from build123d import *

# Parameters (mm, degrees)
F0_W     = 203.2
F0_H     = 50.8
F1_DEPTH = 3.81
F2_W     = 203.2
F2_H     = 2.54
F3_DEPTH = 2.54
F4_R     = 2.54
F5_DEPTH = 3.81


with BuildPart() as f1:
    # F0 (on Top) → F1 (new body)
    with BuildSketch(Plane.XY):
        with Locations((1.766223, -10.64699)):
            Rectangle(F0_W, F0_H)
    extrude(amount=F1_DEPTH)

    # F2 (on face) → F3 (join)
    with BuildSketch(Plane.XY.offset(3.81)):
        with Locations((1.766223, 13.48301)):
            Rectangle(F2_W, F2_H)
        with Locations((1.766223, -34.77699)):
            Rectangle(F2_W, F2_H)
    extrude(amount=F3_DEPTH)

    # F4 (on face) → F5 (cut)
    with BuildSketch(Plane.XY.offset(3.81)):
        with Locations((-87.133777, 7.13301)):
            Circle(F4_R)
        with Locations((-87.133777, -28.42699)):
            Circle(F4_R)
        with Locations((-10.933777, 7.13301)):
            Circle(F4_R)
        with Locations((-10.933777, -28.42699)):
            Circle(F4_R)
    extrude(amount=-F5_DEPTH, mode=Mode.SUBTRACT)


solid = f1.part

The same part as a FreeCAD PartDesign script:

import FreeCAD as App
import Part
import Sketcher
from FreeCAD import Vector
Q = App.Units.Quantity

doc = App.newDocument("Part")
params = doc.addObject("Spreadsheet::Sheet", "Params")
for row, (alias, value) in enumerate([
    ("sketch1_width", "8 in"),
    ("sketch1_height", "2 in"),
    ("pad1_length", "0.15 in"),
    ("sketch2_width", "8 in"),
    ("sketch2_height", "0.1 in"),
    ("pad2_length", "0.1 in"),
    ("sketch3_diameter", "0.2 in"),
    ("pocket1_length", "0.15 in"),
], start=1):
    params.set(f"A{row}", alias)
    params.set(f"B{row}", "=" + value)
    params.setAlias(f"B{row}", alias)

body = doc.addObject("PartDesign::Body", "Body")

# Sketch on XY plane
sketch1 = body.newObject("Sketcher::SketchObject", "Sketch")
sketch1.AttachmentSupport = (doc.getObject("XY_Plane"), [""])
sketch1.MapMode = "FlatFace"
sketch1.addGeometry(Part.LineSegment(Vector(-99.833777, 14.75301, 0), Vector(-99.833777, -36.04699, 0)), False)
sketch1.addGeometry(Part.LineSegment(Vector(-99.833777, -36.04699, 0), Vector(103.366223, -36.04699, 0)), False)
sketch1.addGeometry(Part.LineSegment(Vector(103.366223, -36.04699, 0), Vector(103.366223, 14.75301, 0)), False)
sketch1.addGeometry(Part.LineSegment(Vector(103.366223, 14.75301, 0), Vector(-99.833777, 14.75301, 0)), False)
sketch1.addConstraint(Sketcher.Constraint("Coincident", 0, 2, 1, 1))
sketch1.addConstraint(Sketcher.Constraint("Coincident", 1, 2, 2, 1))
sketch1.addConstraint(Sketcher.Constraint("Coincident", 2, 2, 3, 1))
sketch1.addConstraint(Sketcher.Constraint("Coincident", 3, 2, 0, 1))
sketch1.addConstraint(Sketcher.Constraint("Vertical", 0))
sketch1.addConstraint(Sketcher.Constraint("Horizontal", 1))
sketch1.addConstraint(Sketcher.Constraint("Vertical", 2))
sketch1.addConstraint(Sketcher.Constraint("Horizontal", 3))
sketch1.addConstraint(Sketcher.Constraint("DistanceX", 1, 1, 1, 2, Q("8 in")))
sketch1.addConstraint(Sketcher.Constraint("DistanceY", 0, 2, 0, 1, Q("2 in")))
sketch1.addConstraint(Sketcher.Constraint("DistanceY", 0, 2, -1, 1, Q("36.04699 mm")))
sketch1.addConstraint(Sketcher.Constraint("DistanceX", 0, 2, -1, 1, Q("99.833777 mm")))
sketch1.setExpression("Constraints[8]", "Params.sketch1_width")
sketch1.setExpression("Constraints[9]", "Params.sketch1_height")
pad1 = body.newObject("PartDesign::Pad", "Pad")
pad1.Profile = sketch1
pad1.setExpression("Length", "Params.pad1_length")

# Sketch on XY plane
sketch2 = body.newObject("Sketcher::SketchObject", "Sketch001")
sketch2.AttachmentSupport = (doc.getObject("XY_Plane"), [""])
sketch2.MapMode = "FlatFace"
sketch2.AttachmentOffset = App.Placement(Vector(0, 0, 0.15 * 25.4), App.Rotation())
sketch2.addGeometry(Part.LineSegment(Vector(-99.833777, 14.75301, 0), Vector(-99.833777, 12.21301, 0)), False)
sketch2.addGeometry(Part.LineSegment(Vector(-99.833777, 12.21301, 0), Vector(103.366223, 12.21301, 0)), False)
sketch2.addGeometry(Part.LineSegment(Vector(103.366223, 12.21301, 0), Vector(103.366223, 14.75301, 0)), False)
sketch2.addGeometry(Part.LineSegment(Vector(103.366223, 14.75301, 0), Vector(-99.833777, 14.75301, 0)), False)
sketch2.addGeometry(Part.LineSegment(Vector(-99.833777, -33.50699, 0), Vector(-99.833777, -36.04699, 0)), False)
sketch2.addGeometry(Part.LineSegment(Vector(-99.833777, -36.04699, 0), Vector(103.366223, -36.04699, 0)), False)
sketch2.addGeometry(Part.LineSegment(Vector(103.366223, -36.04699, 0), Vector(103.366223, -33.50699, 0)), False)
sketch2.addGeometry(Part.LineSegment(Vector(103.366223, -33.50699, 0), Vector(-99.833777, -33.50699, 0)), False)
sketch2.addConstraint(Sketcher.Constraint("Coincident", 0, 2, 1, 1))
sketch2.addConstraint(Sketcher.Constraint("Coincident", 1, 2, 2, 1))
sketch2.addConstraint(Sketcher.Constraint("Coincident", 2, 2, 3, 1))
sketch2.addConstraint(Sketcher.Constraint("Coincident", 3, 2, 0, 1))
sketch2.addConstraint(Sketcher.Constraint("Coincident", 4, 2, 5, 1))
sketch2.addConstraint(Sketcher.Constraint("Coincident", 5, 2, 6, 1))
sketch2.addConstraint(Sketcher.Constraint("Coincident", 6, 2, 7, 1))
sketch2.addConstraint(Sketcher.Constraint("Coincident", 7, 2, 4, 1))
sketch2.addConstraint(Sketcher.Constraint("Vertical", 0))
sketch2.addConstraint(Sketcher.Constraint("Horizontal", 1))
sketch2.addConstraint(Sketcher.Constraint("Vertical", 2))
sketch2.addConstraint(Sketcher.Constraint("Horizontal", 3))
sketch2.addConstraint(Sketcher.Constraint("Vertical", 4))
sketch2.addConstraint(Sketcher.Constraint("Horizontal", 5))
sketch2.addConstraint(Sketcher.Constraint("Vertical", 6))
sketch2.addConstraint(Sketcher.Constraint("Horizontal", 7))
sketch2.addConstraint(Sketcher.Constraint("Vertical", 3, 2, 4, 2))
sketch2.addConstraint(Sketcher.Constraint("Vertical", 2, 2, 5, 2))
sketch2.addConstraint(Sketcher.Constraint("Equal", 2, 4))
sketch2.addConstraint(Sketcher.Constraint("DistanceX", 1, 1, 1, 2, Q("8 in")))
sketch2.addConstraint(Sketcher.Constraint("DistanceY", 0, 2, 0, 1, Q("0.1 in")))
sketch2.addConstraint(Sketcher.Constraint("DistanceY", 4, 2, 3, 2, Q("2 in")))
sketch2.addConstraint(Sketcher.Constraint("DistanceY", -1, 1, 0, 2, Q("12.21301 mm")))
sketch2.addConstraint(Sketcher.Constraint("DistanceX", 0, 2, -1, 1, Q("99.833777 mm")))
sketch2.setExpression("Constraints[19]", "Params.sketch2_width")
sketch2.setExpression("Constraints[20]", "Params.sketch2_height")
pad2 = body.newObject("PartDesign::Pad", "Pad001")
pad2.Profile = sketch2
pad2.setExpression("Length", "Params.pad2_length")

# Sketch on XY plane
sketch3 = body.newObject("Sketcher::SketchObject", "Sketch002")
sketch3.AttachmentSupport = (doc.getObject("XY_Plane"), [""])
sketch3.MapMode = "FlatFace"
sketch3.AttachmentOffset = App.Placement(Vector(0, 0, 0.15 * 25.4), App.Rotation())
sketch3.addGeometry(Part.Circle(Vector(-87.133777, 7.13301, 0), Vector(0, 0, 1), 2.54), False)
sketch3.addGeometry(Part.Circle(Vector(-87.133777, -28.42699, 0), Vector(0, 0, 1), 2.54), False)
sketch3.addGeometry(Part.Circle(Vector(-10.933777, 7.13301, 0), Vector(0, 0, 1), 2.54), False)
sketch3.addGeometry(Part.Circle(Vector(-10.933777, -28.42699, 0), Vector(0, 0, 1), 2.54), False)
sketch3.addConstraint(Sketcher.Constraint("Equal", 0, 1))
sketch3.addConstraint(Sketcher.Constraint("Equal", 1, 2))
sketch3.addConstraint(Sketcher.Constraint("Equal", 2, 3))
sketch3.addConstraint(Sketcher.Constraint("Horizontal", 0, 3, 2, 3))
sketch3.addConstraint(Sketcher.Constraint("Horizontal", 1, 3, 3, 3))
sketch3.addConstraint(Sketcher.Constraint("Vertical", 0, 3, 1, 3))
sketch3.addConstraint(Sketcher.Constraint("Vertical", 2, 3, 3, 3))
sketch3.addConstraint(Sketcher.Constraint("Diameter", 0, Q("0.2 in")))
sketch3.addConstraint(Sketcher.Constraint("DistanceX", 0, 3, 2, 3, Q("3 in")))
sketch3.addConstraint(Sketcher.Constraint("DistanceY", 1, 3, 0, 3, Q("1.4 in")))
sketch3.addConstraint(Sketcher.Constraint("DistanceY", -1, 1, 0, 3, Q("7.13301 mm")))
sketch3.addConstraint(Sketcher.Constraint("DistanceX", 0, 3, -1, 1, Q("87.133777 mm")))
sketch3.setExpression("Constraints[7]", "Params.sketch3_diameter")
pocket1 = body.newObject("PartDesign::Pocket", "Pocket")
pocket1.Profile = sketch3
pocket1.setExpression("Length", "Params.pocket1_length")

doc.recompute()
